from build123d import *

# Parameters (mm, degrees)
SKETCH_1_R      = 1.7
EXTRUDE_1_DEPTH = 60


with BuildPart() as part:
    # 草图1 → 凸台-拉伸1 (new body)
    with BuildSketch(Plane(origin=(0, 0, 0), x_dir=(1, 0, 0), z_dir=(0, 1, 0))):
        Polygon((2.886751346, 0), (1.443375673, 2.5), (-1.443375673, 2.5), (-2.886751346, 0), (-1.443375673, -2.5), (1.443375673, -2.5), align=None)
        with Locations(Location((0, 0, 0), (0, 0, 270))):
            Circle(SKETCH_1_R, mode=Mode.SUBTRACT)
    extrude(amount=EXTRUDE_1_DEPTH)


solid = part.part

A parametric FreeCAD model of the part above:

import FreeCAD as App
import Part
import Sketcher
Q = App.Units.Quantity

doc = App.newDocument("Part")
params = doc.addObject("Spreadsheet::Sheet", "Params")
for row, (alias, value) in enumerate([
    ("sketch1_diameter", "3.4 mm"),
    ("pad1_length", "60 mm"),
], start=1):
    params.set(f"A{row}", alias)
    params.set(f"B{row}", "=" + value)
    params.setAlias(f"B{row}", alias)

body = doc.addObject("PartDesign::Body", "Body")

# Sketch on XZ plane
sketch1 = body.newObject("Sketcher::SketchObject", "Sketch")
sketch1.AttachmentSupport = (doc.getObject("XZ_Plane"), [""])
sketch1.MapMode = "FlatFace"
sketch1.addGeometry(Part.LineSegment(App.Vector(2.886751, 0, 0), App.Vector(1.443376, -2.5, 0)), False)
sketch1.addGeometry(Part.LineSegment(App.Vector(1.443376, -2.5, 0), App.Vector(-1.443376, -2.5, 0)), False)
sketch1.addGeometry(Part.LineSegment(App.Vector(-1.443376, -2.5, 0), App.Vector(-2.886751, 0, 0)), False)
sketch1.addGeometry(Part.LineSegment(App.Vector(-2.886751, 0, 0), App.Vector(-1.443376, 2.5, 0)), False)
sketch1.addGeometry(Part.LineSegment(App.Vector(-1.443376, 2.5, 0), App.Vector(1.443376, 2.5, 0)), False)
sketch1.addGeometry(Part.LineSegment(App.Vector(1.443376, 2.5, 0), App.Vector(2.886751, 0, 0)), False)
sketch1.addGeometry(Part.Circle(App.Vector(0, 0, 0), App.Vector(0, 0, 1), 1.7), False)
sketch1.addConstraint(Sketcher.Constraint("Coincident", 0, 2, 1, 1))
sketch1.addConstraint(Sketcher.Constraint("Coincident", 1, 2, 2, 1))
sketch1.addConstraint(Sketcher.Constraint("Coincident", 2, 2, 3, 1))
sketch1.addConstraint(Sketcher.Constraint("Coincident", 3, 2, 4, 1))
sketch1.addConstraint(Sketcher.Constraint("Coincident", 4, 2, 5, 1))
sketch1.addConstraint(Sketcher.Constraint("Coincident", 5, 2, 0, 1))
sketch1.addConstraint(Sketcher.Constraint("Horizontal", 1))
sketch1.addConstraint(Sketcher.Constraint("Horizontal", 4))
sketch1.addConstraint(Sketcher.Constraint("Coincident", 6, 3, -1, 1))
sketch1.addConstraint(Sketcher.Constraint("Symmetric", 0, 2, 3, 2, -1, 1))
sketch1.addConstraint(Sketcher.Constraint("Symmetric", 2, 2, 5, 2, -1, 1))
sketch1.addConstraint(Sketcher.Constraint("PointOnObject", 2, 2, -1))
sketch1.addConstraint(Sketcher.Constraint("Parallel", 2, 5))
sketch1.addConstraint(Sketcher.Constraint("Vertical", 1, 2, 3, 2))
sketch1.addConstraint(Sketcher.Constraint("Diameter", 6, 3.4))
sketch1.addConstraint(Sketcher.Constraint("Angle", 0, Q("-120 deg")))
sketch1.addConstraint(Sketcher.Constraint("DistanceY", 1, 2, 3, 2, 5.0))
sketch1.addConstraint(Sketcher.Constraint("DistanceX", 1, 2, 1, 1, 2.886751))
sketch1.setExpression("Constraints[14]", "Params.sketch1_diameter")
pad1 = body.newObject("PartDesign::Pad", "Pad")
pad1.Profile = sketch1
pad1.setExpression("Length", "Params.pad1_length")
pad1.Reversed = True

doc.recompute()
